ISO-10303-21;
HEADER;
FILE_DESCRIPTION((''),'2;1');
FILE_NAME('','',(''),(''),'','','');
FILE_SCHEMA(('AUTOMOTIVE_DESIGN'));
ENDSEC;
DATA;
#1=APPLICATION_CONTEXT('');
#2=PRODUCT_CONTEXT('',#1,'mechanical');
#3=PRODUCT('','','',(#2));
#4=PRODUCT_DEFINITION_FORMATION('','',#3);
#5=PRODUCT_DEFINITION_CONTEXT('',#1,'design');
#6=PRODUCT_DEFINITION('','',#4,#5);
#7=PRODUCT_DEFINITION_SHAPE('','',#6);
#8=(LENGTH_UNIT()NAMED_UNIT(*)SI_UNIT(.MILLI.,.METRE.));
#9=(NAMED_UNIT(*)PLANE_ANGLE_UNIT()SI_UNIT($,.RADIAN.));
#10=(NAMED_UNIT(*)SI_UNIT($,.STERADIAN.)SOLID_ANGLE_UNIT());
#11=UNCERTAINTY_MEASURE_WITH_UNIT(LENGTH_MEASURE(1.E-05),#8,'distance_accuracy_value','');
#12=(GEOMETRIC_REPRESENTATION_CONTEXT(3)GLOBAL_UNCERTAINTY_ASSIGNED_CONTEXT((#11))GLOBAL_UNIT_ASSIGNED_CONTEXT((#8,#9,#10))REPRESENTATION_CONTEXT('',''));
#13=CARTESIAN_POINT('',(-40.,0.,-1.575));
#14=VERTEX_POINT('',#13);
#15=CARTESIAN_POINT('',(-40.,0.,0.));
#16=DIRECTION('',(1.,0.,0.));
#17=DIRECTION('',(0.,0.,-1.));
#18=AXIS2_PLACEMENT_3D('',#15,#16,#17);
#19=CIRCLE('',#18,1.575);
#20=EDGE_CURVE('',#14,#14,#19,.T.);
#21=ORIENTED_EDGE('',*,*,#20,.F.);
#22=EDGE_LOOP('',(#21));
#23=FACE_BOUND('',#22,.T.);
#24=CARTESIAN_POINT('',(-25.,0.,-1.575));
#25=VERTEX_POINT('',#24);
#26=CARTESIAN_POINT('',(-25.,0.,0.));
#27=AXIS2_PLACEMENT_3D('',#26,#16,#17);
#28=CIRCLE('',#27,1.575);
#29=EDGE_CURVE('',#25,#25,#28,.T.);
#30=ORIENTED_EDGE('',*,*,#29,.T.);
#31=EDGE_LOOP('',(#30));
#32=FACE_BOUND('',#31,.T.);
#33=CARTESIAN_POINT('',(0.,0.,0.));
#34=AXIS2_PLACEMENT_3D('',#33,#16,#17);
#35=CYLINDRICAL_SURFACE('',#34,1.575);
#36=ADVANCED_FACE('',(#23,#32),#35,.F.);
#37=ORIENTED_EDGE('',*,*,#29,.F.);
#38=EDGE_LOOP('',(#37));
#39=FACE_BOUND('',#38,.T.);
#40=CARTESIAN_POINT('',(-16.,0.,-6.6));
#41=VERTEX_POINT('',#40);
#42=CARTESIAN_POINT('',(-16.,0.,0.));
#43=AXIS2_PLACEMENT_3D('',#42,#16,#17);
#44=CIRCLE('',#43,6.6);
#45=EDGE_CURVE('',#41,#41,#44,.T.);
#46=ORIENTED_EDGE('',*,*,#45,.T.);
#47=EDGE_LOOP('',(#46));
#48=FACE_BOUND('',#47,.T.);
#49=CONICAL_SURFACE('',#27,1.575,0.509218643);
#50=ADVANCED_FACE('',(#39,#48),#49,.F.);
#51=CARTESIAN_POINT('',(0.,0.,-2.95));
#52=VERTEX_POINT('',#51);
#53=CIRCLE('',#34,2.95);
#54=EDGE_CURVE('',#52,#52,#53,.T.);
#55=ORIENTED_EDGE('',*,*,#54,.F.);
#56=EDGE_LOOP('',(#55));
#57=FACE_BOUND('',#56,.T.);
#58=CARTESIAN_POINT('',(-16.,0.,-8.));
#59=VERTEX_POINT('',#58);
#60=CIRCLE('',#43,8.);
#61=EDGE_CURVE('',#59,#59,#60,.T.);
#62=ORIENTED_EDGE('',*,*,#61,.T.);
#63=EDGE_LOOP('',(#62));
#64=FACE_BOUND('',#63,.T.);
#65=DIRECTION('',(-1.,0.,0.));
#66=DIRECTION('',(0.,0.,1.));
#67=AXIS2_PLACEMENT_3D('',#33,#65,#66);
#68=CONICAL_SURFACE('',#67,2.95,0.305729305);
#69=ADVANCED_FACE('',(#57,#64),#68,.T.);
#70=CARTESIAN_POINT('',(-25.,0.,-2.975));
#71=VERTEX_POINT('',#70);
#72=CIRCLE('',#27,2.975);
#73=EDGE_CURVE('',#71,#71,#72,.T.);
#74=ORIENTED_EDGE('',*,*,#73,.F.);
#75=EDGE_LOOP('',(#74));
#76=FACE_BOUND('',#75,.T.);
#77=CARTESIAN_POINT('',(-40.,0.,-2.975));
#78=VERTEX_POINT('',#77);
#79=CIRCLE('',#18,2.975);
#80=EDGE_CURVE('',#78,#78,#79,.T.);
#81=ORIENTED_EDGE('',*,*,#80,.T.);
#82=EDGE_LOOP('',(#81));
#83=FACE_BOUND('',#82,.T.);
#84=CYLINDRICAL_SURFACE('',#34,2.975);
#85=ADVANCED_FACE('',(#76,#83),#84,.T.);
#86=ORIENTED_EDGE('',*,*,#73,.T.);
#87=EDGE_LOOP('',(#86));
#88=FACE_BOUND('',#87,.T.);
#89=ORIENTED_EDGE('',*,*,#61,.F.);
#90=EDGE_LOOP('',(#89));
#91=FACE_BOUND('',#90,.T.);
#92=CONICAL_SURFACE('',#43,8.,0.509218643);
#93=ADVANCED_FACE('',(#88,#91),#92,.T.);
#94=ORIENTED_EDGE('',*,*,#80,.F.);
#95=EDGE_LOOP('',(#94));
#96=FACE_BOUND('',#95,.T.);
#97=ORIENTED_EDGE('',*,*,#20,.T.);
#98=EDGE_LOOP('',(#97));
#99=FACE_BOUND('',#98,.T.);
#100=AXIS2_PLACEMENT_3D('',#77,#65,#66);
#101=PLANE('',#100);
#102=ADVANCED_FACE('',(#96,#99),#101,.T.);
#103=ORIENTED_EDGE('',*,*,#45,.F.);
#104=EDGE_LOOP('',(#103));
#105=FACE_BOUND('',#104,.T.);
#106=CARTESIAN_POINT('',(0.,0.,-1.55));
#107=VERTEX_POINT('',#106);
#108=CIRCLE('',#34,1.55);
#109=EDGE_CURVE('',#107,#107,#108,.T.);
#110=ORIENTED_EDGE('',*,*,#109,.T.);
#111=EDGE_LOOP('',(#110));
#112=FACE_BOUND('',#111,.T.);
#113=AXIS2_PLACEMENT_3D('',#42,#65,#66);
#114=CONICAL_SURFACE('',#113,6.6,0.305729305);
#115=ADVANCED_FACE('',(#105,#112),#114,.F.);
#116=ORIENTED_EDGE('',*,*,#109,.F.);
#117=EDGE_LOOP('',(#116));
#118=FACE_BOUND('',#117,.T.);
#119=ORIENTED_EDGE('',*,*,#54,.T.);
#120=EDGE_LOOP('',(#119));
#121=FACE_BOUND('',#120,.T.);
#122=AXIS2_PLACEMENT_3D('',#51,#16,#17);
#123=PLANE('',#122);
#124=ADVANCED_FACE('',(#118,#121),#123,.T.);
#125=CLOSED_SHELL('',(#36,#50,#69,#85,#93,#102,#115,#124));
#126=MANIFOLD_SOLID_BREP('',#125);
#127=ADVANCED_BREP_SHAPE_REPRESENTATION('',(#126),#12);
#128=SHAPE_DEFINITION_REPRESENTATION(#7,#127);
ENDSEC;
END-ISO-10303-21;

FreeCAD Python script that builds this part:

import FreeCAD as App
import Part
import Sketcher

V = App.Vector
Q = App.Units.Quantity

doc = App.newDocument("Part")
body = doc.addObject("PartDesign::Body", "Body")

sketch1 = body.newObject("Sketcher::SketchObject", "Sketch")
sketch1.AttachmentSupport = (doc.getObject("XZ_Plane"), [""])
sketch1.MapMode = "FlatFace"
sketch1.addGeometry(Part.LineSegment(V(-40, -1.6, 0), V(-25, -1.6, 0)), False)
sketch1.addGeometry(Part.LineSegment(V(-25, -1.6, 0), V(-16, -6.6, 0)), False)
sketch1.addGeometry(Part.LineSegment(V(-16, -6.6, 0), V(0, -1.6, 0)), False)
sketch1.addGeometry(Part.LineSegment(V(0, -1.6, 0), V(0, -3, 0)), False)
sketch1.addGeometry(Part.LineSegment(V(0, -3, 0), V(-16, -8, 0)), False)
sketch1.addGeometry(Part.LineSegment(V(-16, -8, 0), V(-25, -3, 0)), False)
sketch1.addGeometry(Part.LineSegment(V(-25, -3, 0), V(-40, -3, 0)), False)
sketch1.addGeometry(Part.LineSegment(V(-40, -3, 0), V(-40, -1.6, 0)), False)
sketch1.addConstraint(Sketcher.Constraint("Coincident", 0, 2, 1, 1))
sketch1.addConstraint(Sketcher.Constraint("Coincident", 1, 2, 2, 1))
sketch1.addConstraint(Sketcher.Constraint("Coincident", 2, 2, 3, 1))
sketch1.addConstraint(Sketcher.Constraint("Coincident", 3, 2, 4, 1))
sketch1.addConstraint(Sketcher.Constraint("Coincident", 4, 2, 5, 1))
sketch1.addConstraint(Sketcher.Constraint("Coincident", 5, 2, 6, 1))
sketch1.addConstraint(Sketcher.Constraint("Coincident", 6, 2, 7, 1))
sketch1.addConstraint(Sketcher.Constraint("Coincident", 7, 2, 0, 1))
sketch1.addConstraint(Sketcher.Constraint("Horizontal", 0))
sketch1.addConstraint(Sketcher.Constraint("Vertical", 3))
sketch1.addConstraint(Sketcher.Constraint("Horizontal", 6))
sketch1.addConstraint(Sketcher.Constraint("Vertical", 7))
sketch1.addConstraint(Sketcher.Constraint("PointOnObject", 2, 2, -2))
sketch1.addConstraint(Sketcher.Constraint("Parallel", 2, 4))
sketch1.addConstraint(Sketcher.Constraint("Parallel", 1, 5))
sketch1.addConstraint(Sketcher.Constraint("Vertical", 1, 2, 4, 2))
sketch1.addConstraint(Sketcher.Constraint("Vertical", 0, 2, 5, 2))
sketch1.addConstraint(Sketcher.Constraint("DistanceX", 0, 1, 0, 2, Q("15 mm")))
sketch1.addConstraint(Sketcher.Constraint("DistanceY", 3, 2, 3, 1, Q("1.4 mm")))
sketch1.addConstraint(Sketcher.Constraint("DistanceX", 0, 2, -1, 1, Q("25 mm")))
sketch1.addConstraint(Sketcher.Constraint("DistanceX", 1, 2, -1, 1, Q("16 mm")))
sketch1.addConstraint(Sketcher.Constraint("DistanceY", 4, 2, -1, 1, Q("8 mm")))
sketch1.addConstraint(Sketcher.Constraint("DistanceY", 2, 2, -1, 1, Q("1.55 mm")))
sketch1.addConstraint(Sketcher.Constraint("DistanceY", 0, 2, -1, 1, Q("1.575 mm")))
revolution = body.newObject("PartDesign::Revolution", "Revolution")
revolution.Profile = sketch1
revolution.ReferenceAxis = (sketch1, ["H_Axis"])
revolution.Angle = 360

doc.recompute()
